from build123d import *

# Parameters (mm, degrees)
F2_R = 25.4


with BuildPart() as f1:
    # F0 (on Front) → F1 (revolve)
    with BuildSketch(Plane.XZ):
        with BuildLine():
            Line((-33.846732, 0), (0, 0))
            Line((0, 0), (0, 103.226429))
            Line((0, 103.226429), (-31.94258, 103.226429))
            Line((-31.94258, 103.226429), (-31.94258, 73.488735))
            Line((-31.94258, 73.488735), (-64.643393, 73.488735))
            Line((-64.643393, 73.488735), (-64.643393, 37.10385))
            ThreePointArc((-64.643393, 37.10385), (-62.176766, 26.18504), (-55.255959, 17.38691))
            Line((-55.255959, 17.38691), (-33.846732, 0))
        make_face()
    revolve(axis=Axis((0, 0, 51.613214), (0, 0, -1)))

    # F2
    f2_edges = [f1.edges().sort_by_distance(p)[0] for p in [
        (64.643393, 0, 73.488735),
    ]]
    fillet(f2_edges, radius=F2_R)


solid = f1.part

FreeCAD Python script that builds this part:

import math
import FreeCAD as App
import Part
import Sketcher

V = App.Vector
Q = App.Units.Quantity


def edges_at(feature, points):
    """Names of the edges that pass closest to the given points."""
    edges = feature.Shape.Edges
    near = lambda p: min(range(len(edges)), key=lambda i: edges[i].distToShape(Part.Vertex(*p))[0])
    return sorted({f"Edge{near(p) + 1}" for p in points})

doc = App.newDocument("Part")
params = doc.addObject("Spreadsheet::Sheet", "Params")
for row, (alias, value) in enumerate([
    ("sketch1_radius", "0.9999999 in"),
    ("revolution_angle", "360 deg"),
    ("fillet_radius", "1 in"),
], start=1):
    params.set(f"A{row}", alias)
    params.set(f"B{row}", "=" + value)
    params.setAlias(f"B{row}", alias)

body = doc.addObject("PartDesign::Body", "Body")

# Sketch on XZ plane
sketch1 = doc.addObject("Sketcher::SketchObject", "Sketch")
body.addObject(sketch1)
sketch1.AttachmentSupport = (doc.XZ_Plane, [""])
sketch1.MapMode = "FlatFace"
sketch1.addGeometry(Part.LineSegment(V(-33.846732, 0, 0), V(0, 0, 0)), False)
sketch1.addGeometry(Part.LineSegment(V(0, 0, 0), V(0, 103.226429, 0)), False)
sketch1.addGeometry(Part.LineSegment(V(0, 103.226429, 0), V(-31.94258, 103.226429, 0)), False)
sketch1.addGeometry(Part.LineSegment(V(-31.94258, 103.226429, 0), V(-31.94258, 73.488735, 0)), False)
sketch1.addGeometry(Part.LineSegment(V(-31.94258, 73.488735, 0), V(-64.643393, 73.488735, 0)), False)
sketch1.addGeometry(Part.LineSegment(V(-64.643393, 73.488735, 0), V(-64.643393, 37.10385, 0)), False)
sketch1.addGeometry(Part.ArcOfCircle(Part.Circle(V(-39.243395, 37.103849, 0), V(0, 0, 1), 25.399998), math.radians(179.999998), math.radians(230.919183)), False)
sketch1.addGeometry(Part.LineSegment(V(-55.255959, 17.38691, 0), V(-33.846732, 0, 0)), False)
sketch1.addConstraint(Sketcher.Constraint("Coincident", 0, 2, 1, 1))
sketch1.addConstraint(Sketcher.Constraint("Coincident", 1, 2, 2, 1))
sketch1.addConstraint(Sketcher.Constraint("Coincident", 2, 2, 3, 1))
sketch1.addConstraint(Sketcher.Constraint("Coincident", 3, 2, 4, 1))
sketch1.addConstraint(Sketcher.Constraint("Coincident", 4, 2, 5, 1))
sketch1.addConstraint(Sketcher.Constraint("Tangent", 5, 2, 6, 1))
sketch1.addConstraint(Sketcher.Constraint("Tangent", 6, 2, 7, 1))
sketch1.addConstraint(Sketcher.Constraint("Coincident", 7, 2, 0, 1))
sketch1.addConstraint(Sketcher.Constraint("Horizontal", 0))
sketch1.addConstraint(Sketcher.Constraint("Vertical", 1))
sketch1.addConstraint(Sketcher.Constraint("Horizontal", 2))
sketch1.addConstraint(Sketcher.Constraint("Vertical", 3))
sketch1.addConstraint(Sketcher.Constraint("Horizontal", 4))
sketch1.addConstraint(Sketcher.Constraint("Vertical", 5))
sketch1.addConstraint(Sketcher.Constraint("Coincident", 0, 2, -1, 1))
sketch1.addConstraint(Sketcher.Constraint("Radius", 6, Q("0.9999999 in")))
sketch1.addConstraint(Sketcher.Constraint("DistanceX", 2, 2, 2, 1, 31.94258))
sketch1.addConstraint(Sketcher.Constraint("DistanceY", 1, 1, 1, 2, 103.226429))
sketch1.addConstraint(Sketcher.Constraint("Distance", 7, 27.580059))
sketch1.addConstraint(Sketcher.Constraint("DistanceX", 0, 1, 0, 2, 33.846732))
sketch1.addConstraint(Sketcher.Constraint("DistanceX", 4, 2, 4, 1, 32.700813))
sketch1.addConstraint(Sketcher.Constraint("DistanceY", 3, 2, 3, 1, 29.737694))
sketch1.setExpression("Constraints[15]", "Params.sketch1_radius")
revolution = doc.addObject("PartDesign::Revolution", "Revolution")
body.addObject(revolution)
revolution.Profile = sketch1
revolution.ReferenceAxis = (sketch1, ["V_Axis"])
revolution.setExpression("Angle", "Params.revolution_angle")
doc.recompute()

fillet = doc.addObject("PartDesign::Fillet", "Fillet")
body.addObject(fillet)
fillet.Base = (revolution, edges_at(revolution, [(64.643, 0, 73.489)]))
fillet.setExpression("Radius", "Params.fillet_radius")

doc.recompute()
